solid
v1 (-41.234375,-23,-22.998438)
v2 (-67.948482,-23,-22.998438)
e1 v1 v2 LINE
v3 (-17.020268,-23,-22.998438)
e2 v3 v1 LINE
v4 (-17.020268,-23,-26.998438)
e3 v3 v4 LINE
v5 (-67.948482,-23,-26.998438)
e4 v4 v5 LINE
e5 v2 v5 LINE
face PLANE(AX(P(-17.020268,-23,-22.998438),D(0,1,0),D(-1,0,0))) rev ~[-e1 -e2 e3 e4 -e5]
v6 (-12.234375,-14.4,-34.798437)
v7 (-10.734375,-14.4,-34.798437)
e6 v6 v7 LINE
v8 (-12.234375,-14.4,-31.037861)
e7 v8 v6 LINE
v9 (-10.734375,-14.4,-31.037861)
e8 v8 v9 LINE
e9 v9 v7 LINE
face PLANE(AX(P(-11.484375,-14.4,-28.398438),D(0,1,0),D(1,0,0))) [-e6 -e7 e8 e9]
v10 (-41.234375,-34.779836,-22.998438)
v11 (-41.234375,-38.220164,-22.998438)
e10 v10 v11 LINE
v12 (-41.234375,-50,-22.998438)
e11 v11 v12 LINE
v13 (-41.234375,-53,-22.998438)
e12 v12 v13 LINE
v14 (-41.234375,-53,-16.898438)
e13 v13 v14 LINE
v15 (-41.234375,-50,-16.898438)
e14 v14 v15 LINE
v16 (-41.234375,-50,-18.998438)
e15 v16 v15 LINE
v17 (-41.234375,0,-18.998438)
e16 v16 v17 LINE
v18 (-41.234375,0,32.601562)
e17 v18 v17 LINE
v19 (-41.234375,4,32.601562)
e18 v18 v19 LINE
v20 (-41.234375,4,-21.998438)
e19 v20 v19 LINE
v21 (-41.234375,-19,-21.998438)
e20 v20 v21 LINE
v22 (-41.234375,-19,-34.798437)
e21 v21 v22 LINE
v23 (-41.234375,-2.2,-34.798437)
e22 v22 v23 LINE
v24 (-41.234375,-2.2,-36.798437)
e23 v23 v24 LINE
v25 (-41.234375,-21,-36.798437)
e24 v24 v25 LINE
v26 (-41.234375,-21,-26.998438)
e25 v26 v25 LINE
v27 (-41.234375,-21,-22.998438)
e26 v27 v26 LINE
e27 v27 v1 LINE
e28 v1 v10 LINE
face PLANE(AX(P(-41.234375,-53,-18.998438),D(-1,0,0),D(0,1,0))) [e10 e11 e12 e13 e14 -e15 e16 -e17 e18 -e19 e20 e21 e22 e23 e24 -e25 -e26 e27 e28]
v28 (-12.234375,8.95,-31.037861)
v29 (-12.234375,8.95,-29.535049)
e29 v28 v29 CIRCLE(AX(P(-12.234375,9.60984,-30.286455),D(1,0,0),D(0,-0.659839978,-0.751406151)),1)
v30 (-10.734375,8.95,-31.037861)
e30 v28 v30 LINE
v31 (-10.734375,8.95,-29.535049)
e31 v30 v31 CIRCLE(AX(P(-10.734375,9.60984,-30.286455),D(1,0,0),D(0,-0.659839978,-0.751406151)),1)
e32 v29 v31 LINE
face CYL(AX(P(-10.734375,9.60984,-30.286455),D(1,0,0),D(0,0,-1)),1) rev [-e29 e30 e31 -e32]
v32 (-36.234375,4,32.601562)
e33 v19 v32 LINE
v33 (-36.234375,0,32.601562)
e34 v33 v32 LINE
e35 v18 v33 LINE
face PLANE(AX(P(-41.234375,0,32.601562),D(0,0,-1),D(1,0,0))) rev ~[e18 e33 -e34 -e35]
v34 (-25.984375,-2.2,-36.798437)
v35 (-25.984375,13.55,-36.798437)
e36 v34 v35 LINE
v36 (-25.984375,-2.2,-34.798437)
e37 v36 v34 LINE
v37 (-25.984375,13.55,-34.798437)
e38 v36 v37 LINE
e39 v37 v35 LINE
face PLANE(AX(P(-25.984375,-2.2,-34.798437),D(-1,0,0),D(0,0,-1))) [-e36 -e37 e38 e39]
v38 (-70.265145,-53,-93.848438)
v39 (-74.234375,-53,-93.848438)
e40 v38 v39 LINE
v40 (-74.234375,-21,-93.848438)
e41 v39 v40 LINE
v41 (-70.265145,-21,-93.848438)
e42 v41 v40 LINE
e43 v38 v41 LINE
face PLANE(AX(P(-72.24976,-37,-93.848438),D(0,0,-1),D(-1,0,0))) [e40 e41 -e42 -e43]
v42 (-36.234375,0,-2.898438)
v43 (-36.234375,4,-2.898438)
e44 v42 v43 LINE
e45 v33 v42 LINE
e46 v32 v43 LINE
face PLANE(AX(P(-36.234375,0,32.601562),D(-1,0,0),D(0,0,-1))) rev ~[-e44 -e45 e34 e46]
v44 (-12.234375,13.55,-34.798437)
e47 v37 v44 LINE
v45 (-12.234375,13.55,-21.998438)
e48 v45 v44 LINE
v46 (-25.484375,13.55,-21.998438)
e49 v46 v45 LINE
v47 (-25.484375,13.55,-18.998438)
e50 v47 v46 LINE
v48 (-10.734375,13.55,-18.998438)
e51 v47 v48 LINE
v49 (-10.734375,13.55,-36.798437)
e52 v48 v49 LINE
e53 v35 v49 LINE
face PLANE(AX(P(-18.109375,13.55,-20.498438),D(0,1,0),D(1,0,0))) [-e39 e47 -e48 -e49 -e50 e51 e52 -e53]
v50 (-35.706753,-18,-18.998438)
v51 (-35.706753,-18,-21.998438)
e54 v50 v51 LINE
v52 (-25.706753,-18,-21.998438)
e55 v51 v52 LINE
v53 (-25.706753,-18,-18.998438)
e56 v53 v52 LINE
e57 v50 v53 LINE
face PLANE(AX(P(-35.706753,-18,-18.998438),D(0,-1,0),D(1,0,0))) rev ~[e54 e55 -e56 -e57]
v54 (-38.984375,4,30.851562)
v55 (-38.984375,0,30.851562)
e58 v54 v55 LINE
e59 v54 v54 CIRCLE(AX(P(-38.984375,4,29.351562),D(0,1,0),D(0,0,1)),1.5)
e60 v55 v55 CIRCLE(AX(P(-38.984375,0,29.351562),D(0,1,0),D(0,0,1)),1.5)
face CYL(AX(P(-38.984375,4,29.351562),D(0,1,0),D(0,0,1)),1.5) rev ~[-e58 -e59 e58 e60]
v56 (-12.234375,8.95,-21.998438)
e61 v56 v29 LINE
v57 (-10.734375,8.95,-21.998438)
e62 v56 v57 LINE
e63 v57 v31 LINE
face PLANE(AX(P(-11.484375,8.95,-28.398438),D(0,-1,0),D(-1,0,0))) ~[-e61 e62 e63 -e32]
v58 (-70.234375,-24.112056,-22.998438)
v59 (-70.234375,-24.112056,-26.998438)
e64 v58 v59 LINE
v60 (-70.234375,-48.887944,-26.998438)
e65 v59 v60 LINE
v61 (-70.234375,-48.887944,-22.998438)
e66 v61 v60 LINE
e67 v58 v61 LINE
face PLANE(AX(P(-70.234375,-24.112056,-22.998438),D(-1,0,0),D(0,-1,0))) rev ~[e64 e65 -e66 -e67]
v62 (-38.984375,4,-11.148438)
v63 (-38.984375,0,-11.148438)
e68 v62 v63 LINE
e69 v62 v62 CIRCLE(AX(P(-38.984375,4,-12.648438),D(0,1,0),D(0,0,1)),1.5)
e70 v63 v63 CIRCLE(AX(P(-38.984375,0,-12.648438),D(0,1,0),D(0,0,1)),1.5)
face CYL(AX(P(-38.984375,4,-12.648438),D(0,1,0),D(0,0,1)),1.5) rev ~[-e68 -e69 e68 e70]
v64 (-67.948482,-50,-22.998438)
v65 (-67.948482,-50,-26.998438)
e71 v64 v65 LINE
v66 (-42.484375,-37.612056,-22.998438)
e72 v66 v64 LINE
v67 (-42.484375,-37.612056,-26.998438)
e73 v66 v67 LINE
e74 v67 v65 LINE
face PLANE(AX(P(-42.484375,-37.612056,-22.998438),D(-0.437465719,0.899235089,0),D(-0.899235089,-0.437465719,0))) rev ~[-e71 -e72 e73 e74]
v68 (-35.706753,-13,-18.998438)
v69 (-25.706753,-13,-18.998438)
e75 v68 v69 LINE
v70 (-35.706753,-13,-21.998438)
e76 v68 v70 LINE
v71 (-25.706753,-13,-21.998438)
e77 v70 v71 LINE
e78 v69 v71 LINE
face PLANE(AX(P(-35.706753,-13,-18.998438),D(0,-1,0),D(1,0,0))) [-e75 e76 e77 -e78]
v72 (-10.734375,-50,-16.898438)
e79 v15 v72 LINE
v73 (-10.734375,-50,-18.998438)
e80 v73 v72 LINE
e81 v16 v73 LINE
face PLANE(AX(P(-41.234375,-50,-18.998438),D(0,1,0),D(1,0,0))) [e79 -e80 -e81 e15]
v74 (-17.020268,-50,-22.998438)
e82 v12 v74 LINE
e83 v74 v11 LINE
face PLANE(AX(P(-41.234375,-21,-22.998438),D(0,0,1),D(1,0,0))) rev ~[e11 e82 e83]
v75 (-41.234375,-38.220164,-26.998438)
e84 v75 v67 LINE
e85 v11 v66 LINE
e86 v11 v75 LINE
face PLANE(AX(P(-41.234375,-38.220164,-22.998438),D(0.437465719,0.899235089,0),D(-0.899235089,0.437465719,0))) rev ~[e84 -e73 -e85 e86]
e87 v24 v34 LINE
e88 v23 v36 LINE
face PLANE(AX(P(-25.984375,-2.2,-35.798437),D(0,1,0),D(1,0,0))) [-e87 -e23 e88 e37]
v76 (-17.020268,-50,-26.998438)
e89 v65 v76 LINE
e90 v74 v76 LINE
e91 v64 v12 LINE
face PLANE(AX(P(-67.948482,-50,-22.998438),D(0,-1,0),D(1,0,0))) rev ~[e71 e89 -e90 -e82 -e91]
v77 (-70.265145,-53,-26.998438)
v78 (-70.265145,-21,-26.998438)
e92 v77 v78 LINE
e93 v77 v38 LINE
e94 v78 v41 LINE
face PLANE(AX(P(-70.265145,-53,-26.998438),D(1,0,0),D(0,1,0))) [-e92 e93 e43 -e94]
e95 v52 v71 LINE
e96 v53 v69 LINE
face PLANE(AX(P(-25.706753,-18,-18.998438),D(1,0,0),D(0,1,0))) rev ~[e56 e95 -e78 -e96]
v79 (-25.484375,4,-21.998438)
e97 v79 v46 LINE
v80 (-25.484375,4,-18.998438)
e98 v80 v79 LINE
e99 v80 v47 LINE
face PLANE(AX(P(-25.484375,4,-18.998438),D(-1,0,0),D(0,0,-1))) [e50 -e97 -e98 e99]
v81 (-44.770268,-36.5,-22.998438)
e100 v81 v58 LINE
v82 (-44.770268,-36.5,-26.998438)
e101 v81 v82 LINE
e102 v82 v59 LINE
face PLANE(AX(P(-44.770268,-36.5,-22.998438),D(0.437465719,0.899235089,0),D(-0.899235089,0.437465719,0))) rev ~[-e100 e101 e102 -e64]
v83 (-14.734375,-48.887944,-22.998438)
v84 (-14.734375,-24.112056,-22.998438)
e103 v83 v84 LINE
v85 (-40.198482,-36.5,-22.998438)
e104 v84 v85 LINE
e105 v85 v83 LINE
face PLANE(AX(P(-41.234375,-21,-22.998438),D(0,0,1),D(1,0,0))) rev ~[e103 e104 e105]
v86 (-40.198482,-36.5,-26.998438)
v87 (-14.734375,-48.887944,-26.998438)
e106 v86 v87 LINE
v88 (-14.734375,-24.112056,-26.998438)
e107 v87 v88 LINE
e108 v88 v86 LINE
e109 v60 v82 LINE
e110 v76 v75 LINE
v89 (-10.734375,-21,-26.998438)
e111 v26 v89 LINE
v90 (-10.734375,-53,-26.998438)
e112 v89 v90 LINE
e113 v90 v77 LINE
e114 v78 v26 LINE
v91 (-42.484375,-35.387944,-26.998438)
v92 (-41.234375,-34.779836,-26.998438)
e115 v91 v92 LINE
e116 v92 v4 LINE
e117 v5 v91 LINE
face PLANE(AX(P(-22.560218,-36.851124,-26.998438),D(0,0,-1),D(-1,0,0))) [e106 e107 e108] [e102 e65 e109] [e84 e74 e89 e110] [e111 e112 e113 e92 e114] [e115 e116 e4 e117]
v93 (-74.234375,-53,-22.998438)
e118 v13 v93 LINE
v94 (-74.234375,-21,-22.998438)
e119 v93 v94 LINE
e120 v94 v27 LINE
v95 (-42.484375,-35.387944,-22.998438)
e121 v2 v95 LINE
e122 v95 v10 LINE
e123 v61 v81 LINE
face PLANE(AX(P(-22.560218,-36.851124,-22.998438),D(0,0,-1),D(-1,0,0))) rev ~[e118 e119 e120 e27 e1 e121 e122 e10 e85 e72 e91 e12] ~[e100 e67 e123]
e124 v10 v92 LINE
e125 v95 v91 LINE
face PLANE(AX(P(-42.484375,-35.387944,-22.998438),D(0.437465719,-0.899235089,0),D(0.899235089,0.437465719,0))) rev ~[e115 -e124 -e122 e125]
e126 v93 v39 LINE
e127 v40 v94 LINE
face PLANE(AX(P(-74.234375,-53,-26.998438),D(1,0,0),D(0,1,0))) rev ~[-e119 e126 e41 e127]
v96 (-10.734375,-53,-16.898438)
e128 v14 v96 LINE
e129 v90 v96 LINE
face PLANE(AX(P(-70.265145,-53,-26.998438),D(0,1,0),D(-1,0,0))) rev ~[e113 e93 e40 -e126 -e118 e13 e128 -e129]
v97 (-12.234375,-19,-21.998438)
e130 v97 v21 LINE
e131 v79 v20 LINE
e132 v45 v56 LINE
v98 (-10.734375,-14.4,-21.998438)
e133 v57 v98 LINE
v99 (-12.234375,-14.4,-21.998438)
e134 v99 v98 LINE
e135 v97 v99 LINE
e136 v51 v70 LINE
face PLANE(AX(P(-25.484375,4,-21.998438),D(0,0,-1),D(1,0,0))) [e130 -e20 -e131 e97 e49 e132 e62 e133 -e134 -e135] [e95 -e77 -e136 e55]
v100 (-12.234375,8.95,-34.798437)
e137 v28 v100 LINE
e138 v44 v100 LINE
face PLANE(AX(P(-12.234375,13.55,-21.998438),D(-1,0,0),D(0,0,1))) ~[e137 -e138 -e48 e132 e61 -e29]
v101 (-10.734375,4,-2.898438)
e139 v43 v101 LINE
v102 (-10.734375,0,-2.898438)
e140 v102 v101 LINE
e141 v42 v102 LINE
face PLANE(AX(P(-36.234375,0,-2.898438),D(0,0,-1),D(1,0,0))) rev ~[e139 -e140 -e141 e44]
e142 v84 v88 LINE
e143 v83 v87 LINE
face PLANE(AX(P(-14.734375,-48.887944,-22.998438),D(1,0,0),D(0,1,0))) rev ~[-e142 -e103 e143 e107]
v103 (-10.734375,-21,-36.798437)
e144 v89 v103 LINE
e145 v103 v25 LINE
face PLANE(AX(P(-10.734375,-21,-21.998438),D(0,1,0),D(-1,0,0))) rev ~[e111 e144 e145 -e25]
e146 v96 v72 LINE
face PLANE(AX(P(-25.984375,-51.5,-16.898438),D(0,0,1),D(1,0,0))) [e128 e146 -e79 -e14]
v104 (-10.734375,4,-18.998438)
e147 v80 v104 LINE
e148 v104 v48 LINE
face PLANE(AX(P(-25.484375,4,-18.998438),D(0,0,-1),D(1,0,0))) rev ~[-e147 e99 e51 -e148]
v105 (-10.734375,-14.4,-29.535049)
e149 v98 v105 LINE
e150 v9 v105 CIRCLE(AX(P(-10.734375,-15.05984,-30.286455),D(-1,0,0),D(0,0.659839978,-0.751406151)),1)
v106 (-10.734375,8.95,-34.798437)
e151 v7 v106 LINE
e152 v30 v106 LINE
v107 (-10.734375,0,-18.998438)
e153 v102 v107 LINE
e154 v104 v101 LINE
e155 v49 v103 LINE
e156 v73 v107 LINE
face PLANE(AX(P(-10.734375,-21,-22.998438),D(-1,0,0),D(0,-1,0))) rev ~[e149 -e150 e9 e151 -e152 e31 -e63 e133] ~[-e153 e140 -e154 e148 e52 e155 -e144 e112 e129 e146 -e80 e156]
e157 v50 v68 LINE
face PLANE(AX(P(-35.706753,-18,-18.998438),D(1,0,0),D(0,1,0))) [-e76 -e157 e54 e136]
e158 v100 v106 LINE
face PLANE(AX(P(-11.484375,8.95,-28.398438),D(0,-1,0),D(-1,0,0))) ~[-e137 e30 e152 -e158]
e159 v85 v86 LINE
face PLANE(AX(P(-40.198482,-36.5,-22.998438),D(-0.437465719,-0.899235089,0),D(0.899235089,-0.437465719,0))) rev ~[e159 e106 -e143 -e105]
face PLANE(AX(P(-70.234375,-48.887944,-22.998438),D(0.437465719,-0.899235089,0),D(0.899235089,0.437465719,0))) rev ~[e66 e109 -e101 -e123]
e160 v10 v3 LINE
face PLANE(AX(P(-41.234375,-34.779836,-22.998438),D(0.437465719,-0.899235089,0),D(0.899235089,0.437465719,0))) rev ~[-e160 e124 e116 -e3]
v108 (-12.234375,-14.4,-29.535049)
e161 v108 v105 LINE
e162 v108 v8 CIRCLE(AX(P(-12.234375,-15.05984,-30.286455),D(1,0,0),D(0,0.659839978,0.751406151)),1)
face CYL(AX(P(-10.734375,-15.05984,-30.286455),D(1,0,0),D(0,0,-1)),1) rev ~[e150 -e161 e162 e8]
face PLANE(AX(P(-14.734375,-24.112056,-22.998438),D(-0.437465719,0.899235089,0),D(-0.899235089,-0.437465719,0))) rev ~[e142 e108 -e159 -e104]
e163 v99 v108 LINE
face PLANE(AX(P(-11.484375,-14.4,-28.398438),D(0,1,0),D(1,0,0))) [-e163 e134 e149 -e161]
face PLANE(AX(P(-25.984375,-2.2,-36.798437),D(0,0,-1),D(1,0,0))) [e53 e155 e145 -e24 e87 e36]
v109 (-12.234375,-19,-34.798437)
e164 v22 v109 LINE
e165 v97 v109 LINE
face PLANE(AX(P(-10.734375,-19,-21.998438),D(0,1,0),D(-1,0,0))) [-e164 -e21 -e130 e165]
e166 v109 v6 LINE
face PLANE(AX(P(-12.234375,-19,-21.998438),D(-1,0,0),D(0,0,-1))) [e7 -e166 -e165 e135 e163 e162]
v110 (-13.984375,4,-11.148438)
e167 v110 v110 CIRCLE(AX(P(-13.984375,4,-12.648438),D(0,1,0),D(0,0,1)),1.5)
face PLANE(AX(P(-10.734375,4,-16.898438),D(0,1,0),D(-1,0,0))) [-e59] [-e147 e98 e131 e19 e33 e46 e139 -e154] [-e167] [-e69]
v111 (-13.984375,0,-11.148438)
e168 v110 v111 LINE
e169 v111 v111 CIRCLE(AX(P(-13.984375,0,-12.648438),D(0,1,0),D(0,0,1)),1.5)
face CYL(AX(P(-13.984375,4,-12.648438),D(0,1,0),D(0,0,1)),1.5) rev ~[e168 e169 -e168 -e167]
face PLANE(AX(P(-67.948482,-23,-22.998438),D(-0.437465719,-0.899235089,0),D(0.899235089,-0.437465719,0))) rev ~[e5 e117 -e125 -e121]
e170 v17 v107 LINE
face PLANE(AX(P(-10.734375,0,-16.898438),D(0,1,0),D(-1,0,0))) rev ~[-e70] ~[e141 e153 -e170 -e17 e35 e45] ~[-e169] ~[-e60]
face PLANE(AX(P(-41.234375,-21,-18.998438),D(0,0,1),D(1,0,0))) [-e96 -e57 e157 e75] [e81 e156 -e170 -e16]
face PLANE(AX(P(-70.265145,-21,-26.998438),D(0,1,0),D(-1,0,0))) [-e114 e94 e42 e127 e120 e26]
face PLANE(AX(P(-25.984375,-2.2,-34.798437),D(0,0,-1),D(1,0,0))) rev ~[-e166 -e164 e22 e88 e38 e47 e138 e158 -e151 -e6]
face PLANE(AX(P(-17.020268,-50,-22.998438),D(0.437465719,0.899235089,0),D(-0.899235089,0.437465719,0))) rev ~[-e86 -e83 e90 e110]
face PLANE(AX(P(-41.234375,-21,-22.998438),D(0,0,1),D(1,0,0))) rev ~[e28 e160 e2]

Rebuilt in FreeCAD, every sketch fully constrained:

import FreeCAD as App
import Part
import Sketcher
from FreeCAD import Vector

doc = App.newDocument("Part")
body = doc.addObject("PartDesign::Body", "Body")

sketch1 = doc.addObject("Sketcher::SketchObject", "Sketch")
body.addObject(sketch1)
sketch1.AttachmentSupport = (doc.XZ_Plane, [""])
sketch1.MapMode = "FlatFace"
sketch1.addGeometry([
    Part.LineSegment(Vector(-41, -17, 0), Vector(-41, 33, 0)),
    Part.LineSegment(Vector(-41, 33, 0), Vector(-36, 33, 0)),
    Part.LineSegment(Vector(-36, 33, 0), Vector(-36, -3, 0)),
    Part.LineSegment(Vector(-36, -3, 0), Vector(-11, -3, 0)),
    Part.LineSegment(Vector(-11, -3, 0), Vector(-11, -17, 0)),
    Part.LineSegment(Vector(-11, -17, 0), Vector(-41, -17, 0)),
], False)
sketch1.addConstraint([
    Sketcher.Constraint("Coincident", 0, 2, 1, 1),
    Sketcher.Constraint("Coincident", 1, 2, 2, 1),
    Sketcher.Constraint("Coincident", 2, 2, 3, 1),
    Sketcher.Constraint("Coincident", 3, 2, 4, 1),
    Sketcher.Constraint("Coincident", 4, 2, 5, 1),
    Sketcher.Constraint("Coincident", 5, 2, 0, 1),
    Sketcher.Constraint("Vertical", 0),
    Sketcher.Constraint("Horizontal", 1),
    Sketcher.Constraint("Vertical", 2),
    Sketcher.Constraint("Horizontal", 3),
    Sketcher.Constraint("Vertical", 4),
    Sketcher.Constraint("Horizontal", 5),
    Sketcher.Constraint("DistanceX", 1, 1, 1, 2, 5.0),
    Sketcher.Constraint("DistanceY", 4, 2, 4, 1, 14.0),
    Sketcher.Constraint("DistanceX", 3, 1, 3, 2, 25.5),
    Sketcher.Constraint("DistanceY", 0, 1, 0, 2, 49.5),
    Sketcher.Constraint("DistanceX", 0, 2, -1, 1, 41.234375),
    Sketcher.Constraint("DistanceY", -1, 1, 0, 2, 32.601562),
])
pad1 = doc.addObject("PartDesign::Pad", "Pad")
body.addObject(pad1)
pad1.Profile = sketch1
pad1.Length = 4
pad1.Reversed = True

sketch2 = doc.addObject("Sketcher::SketchObject", "Sketch001")
body.addObject(sketch2)
sketch2.AttachmentSupport = (doc.XZ_Plane, [""])
sketch2.MapMode = "FlatFace"
sketch2.AttachmentOffset = App.Placement(Vector(0, 0, -4), App.Rotation())
sketch2.addGeometry([
    Part.Circle(Vector(-39, 29.4, 0), Vector(0, 0, 1), 1.5),
    Part.Circle(Vector(-39, -12.6, 0), Vector(0, 0, 1), 1.5),
    Part.Circle(Vector(-14, -12.6, 0), Vector(0, 0, 1), 1.5),
], False)
sketch2.addConstraint([
    Sketcher.Constraint("Equal", 0, 1),
    Sketcher.Constraint("Equal", 1, 2),
    Sketcher.Constraint("Horizontal", 1, 3, 2, 3),
    Sketcher.Constraint("Vertical", 0, 3, 1, 3),
    Sketcher.Constraint("Diameter", 0, 3.0),
    Sketcher.Constraint("DistanceY", 1, 3, 0, 3, 42.0),
    Sketcher.Constraint("DistanceX", 1, 3, 2, 3, 25.0),
    Sketcher.Constraint("DistanceX", 0, 3, -1, 1, 38.984375),
    Sketcher.Constraint("DistanceY", -1, 1, 0, 3, 29.351562),
])
pocket1 = doc.addObject("PartDesign::Pocket", "Pocket")
body.addObject(pocket1)
pocket1.Profile = sketch2
pocket1.Type = "ThroughAll"
pocket1.Reversed = True

sketch3 = doc.addObject("Sketcher::SketchObject", "Sketch002")
body.addObject(sketch3)
sketch3.AttachmentSupport = (doc.XY_Plane, [""])
sketch3.MapMode = "FlatFace"
sketch3.AttachmentOffset = App.Placement(Vector(0, 0, -16.898438), App.Rotation())
sketch3.addGeometry([
    Part.LineSegment(Vector(-10.7, 4, 0), Vector(-10.7, 0, 0)),
    Part.LineSegment(Vector(-10.7, 0, 0), Vector(-41.2, 0, 0)),
    Part.LineSegment(Vector(-41.2, 0, 0), Vector(-41.2, 4, 0)),
    Part.LineSegment(Vector(-41.2, 4, 0), Vector(-10.7, 4, 0)),
], False)
sketch3.addConstraint([
    Sketcher.Constraint("Coincident", 0, 2, 1, 1),
    Sketcher.Constraint("Coincident", 1, 2, 2, 1),
    Sketcher.Constraint("Coincident", 2, 2, 3, 1),
    Sketcher.Constraint("Coincident", 3, 2, 0, 1),
    Sketcher.Constraint("Vertical", 0),
    Sketcher.Constraint("Horizontal", 1),
    Sketcher.Constraint("Vertical", 2),
    Sketcher.Constraint("Horizontal", 3),
    Sketcher.Constraint("PointOnObject", 0, 2, -1),
    Sketcher.Constraint("DistanceY", 0, 2, 0, 1, 4.0),
    Sketcher.Constraint("DistanceX", 1, 2, 1, 1, 30.5),
    Sketcher.Constraint("DistanceX", 0, 2, -1, 1, 10.734375),
])
pad2 = doc.addObject("PartDesign::Pad", "Pad001")
body.addObject(pad2)
pad2.Profile = sketch3
pad2.Length = 5.1
pad2.Reversed = True

sketch4 = doc.addObject("Sketcher::SketchObject", "Sketch003")
body.addObject(sketch4)
sketch4.AttachmentSupport = (doc.XZ_Plane, [""])
sketch4.MapMode = "FlatFace"
sketch4.addGeometry([
    Part.LineSegment(Vector(-41.2, -19, 0), Vector(-41.2, -22, 0)),
    Part.LineSegment(Vector(-41.2, -22, 0), Vector(-10.7, -22, 0)),
    Part.LineSegment(Vector(-10.7, -22, 0), Vector(-10.7, -19, 0)),
    Part.LineSegment(Vector(-10.7, -19, 0), Vector(-41.2, -19, 0)),
], False)
sketch4.addConstraint([
    Sketcher.Constraint("Coincident", 0, 2, 1, 1),
    Sketcher.Constraint("Coincident", 1, 2, 2, 1),
    Sketcher.Constraint("Coincident", 2, 2, 3, 1),
    Sketcher.Constraint("Coincident", 3, 2, 0, 1),
    Sketcher.Constraint("Vertical", 0),
    Sketcher.Constraint("Horizontal", 1),
    Sketcher.Constraint("Vertical", 2),
    Sketcher.Constraint("Horizontal", 3),
    Sketcher.Constraint("DistanceY", 0, 2, 0, 1, 3.0),
    Sketcher.Constraint("DistanceX", 1, 1, 1, 2, 30.5),
    Sketcher.Constraint("DistanceX", 0, 2, -1, 1, 41.234375),
    Sketcher.Constraint("DistanceY", 0, 2, -1, 1, 21.998438),
])
pad3 = doc.addObject("PartDesign::Pad", "Pad002")
body.addObject(pad3)
pad3.Profile = sketch4
pad3.Length = 21

sketch5 = doc.addObject("Sketcher::SketchObject", "Sketch004")
body.addObject(sketch5)
sketch5.AttachmentSupport = (doc.XY_Plane, [""])
sketch5.MapMode = "FlatFace"
sketch5.AttachmentOffset = App.Placement(Vector(0, 0, -21.998438), App.Rotation())
sketch5.addGeometry([
    Part.LineSegment(Vector(-10.7, -19, 0), Vector(-10.7, -21, 0)),
    Part.LineSegment(Vector(-10.7, -21, 0), Vector(-41.2, -21, 0)),
    Part.LineSegment(Vector(-41.2, -21, 0), Vector(-41.2, -19, 0)),
    Part.LineSegment(Vector(-41.2, -19, 0), Vector(-10.7, -19, 0)),
], False)
sketch5.addConstraint([
    Sketcher.Constraint("Coincident", 0, 2, 1, 1),
    Sketcher.Constraint("Coincident", 1, 2, 2, 1),
    Sketcher.Constraint("Coincident", 2, 2, 3, 1),
    Sketcher.Constraint("Coincident", 3, 2, 0, 1),
    Sketcher.Constraint("Vertical", 0),
    Sketcher.Constraint("Horizontal", 1),
    Sketcher.Constraint("Vertical", 2),
    Sketcher.Constraint("Horizontal", 3),
    Sketcher.Constraint("DistanceY", 0, 2, 0, 1, 2.0),
    Sketcher.Constraint("DistanceX", 1, 2, 1, 1, 30.5),
    Sketcher.Constraint("DistanceY", 0, 2, -1, 1, 21.0),
    Sketcher.Constraint("DistanceX", 0, 2, -1, 1, 10.734375),
])
pad4 = doc.addObject("PartDesign::Pad", "Pad003")
body.addObject(pad4)
pad4.Profile = sketch5
pad4.Length = 14.8
pad4.Reversed = True

sketch6 = doc.addObject("Sketcher::SketchObject", "Sketch005")
body.addObject(sketch6)
sketch6.AttachmentSupport = (doc.XZ_Plane, [""])
sketch6.MapMode = "FlatFace"
sketch6.AttachmentOffset = App.Placement(Vector(0, 0, 19), App.Rotation())
sketch6.addGeometry([
    Part.LineSegment(Vector(-41.2, -36.8, 0), Vector(-41.2, -34.8, 0)),
    Part.LineSegment(Vector(-41.2, -34.8, 0), Vector(-10.7, -34.8, 0)),
    Part.LineSegment(Vector(-10.7, -34.8, 0), Vector(-10.7, -36.8, 0)),
    Part.LineSegment(Vector(-10.7, -36.8, 0), Vector(-41.2, -36.8, 0)),
], False)
sketch6.addConstraint([
    Sketcher.Constraint("Coincident", 0, 2, 1, 1),
    Sketcher.Constraint("Coincident", 1, 2, 2, 1),
    Sketcher.Constraint("Coincident", 2, 2, 3, 1),
    Sketcher.Constraint("Coincident", 3, 2, 0, 1),
    Sketcher.Constraint("Vertical", 0),
    Sketcher.Constraint("Horizontal", 1),
    Sketcher.Constraint("Vertical", 2),
    Sketcher.Constraint("Horizontal", 3),
    Sketcher.Constraint("DistanceY", 0, 1, 0, 2, 2.0),
    Sketcher.Constraint("DistanceX", 1, 1, 1, 2, 30.5),
    Sketcher.Constraint("DistanceX", 0, 2, -1, 1, 41.234375),
    Sketcher.Constraint("DistanceY", 0, 2, -1, 1, 34.798437),
])
pad5 = doc.addObject("PartDesign::Pad", "Pad004")
body.addObject(pad5)
pad5.Profile = sketch6
pad5.Length = 16.8
pad5.Reversed = True

sketch7 = doc.addObject("Sketcher::SketchObject", "Sketch006")
body.addObject(sketch7)
sketch7.AttachmentSupport = (doc.XZ_Plane, [""])
sketch7.MapMode = "FlatFace"
sketch7.AttachmentOffset = App.Placement(Vector(0, 0, 19), App.Rotation())
sketch7.addGeometry([
    Part.LineSegment(Vector(-12.2, -34.8, 0), Vector(-12.2, -22, 0)),
    Part.LineSegment(Vector(-12.2, -22, 0), Vector(-10.7, -22, 0)),
    Part.LineSegment(Vector(-10.7, -22, 0), Vector(-10.7, -34.8, 0)),
    Part.LineSegment(Vector(-10.7, -34.8, 0), Vector(-12.2, -34.8, 0)),
], False)
sketch7.addConstraint([
    Sketcher.Constraint("Coincident", 0, 2, 1, 1),
    Sketcher.Constraint("Coincident", 1, 2, 2, 1),
    Sketcher.Constraint("Coincident", 2, 2, 3, 1),
    Sketcher.Constraint("Coincident", 3, 2, 0, 1),
    Sketcher.Constraint("Vertical", 0),
    Sketcher.Constraint("Horizontal", 1),
    Sketcher.Constraint("Vertical", 2),
    Sketcher.Constraint("Horizontal", 3),
    Sketcher.Constraint("DistanceX", 1, 1, 1, 2, 1.5),
    Sketcher.Constraint("DistanceY", 0, 1, 0, 2, 12.8),
    Sketcher.Constraint("DistanceX", 0, 2, -1, 1, 12.234375),
    Sketcher.Constraint("DistanceY", 0, 2, -1, 1, 21.998438),
])
pad6 = doc.addObject("PartDesign::Pad", "Pad005")
body.addObject(pad6)
pad6.Profile = sketch7
pad6.Length = 4.6
pad6.Reversed = True

sketch8 = doc.addObject("Sketcher::SketchObject", "Sketch007")
body.addObject(sketch8)
sketch8.AttachmentSupport = (doc.XZ_Plane, [""])
sketch8.MapMode = "FlatFace"
sketch8.AttachmentOffset = App.Placement(Vector(0, 0, 2.2), App.Rotation())
sketch8.addGeometry([
    Part.LineSegment(Vector(-26, -36.8, 0), Vector(-26, -34.8, 0)),
    Part.LineSegment(Vector(-26, -34.8, 0), Vector(-10.7, -34.8, 0)),
    Part.LineSegment(Vector(-10.7, -34.8, 0), Vector(-10.7, -36.8, 0)),
    Part.LineSegment(Vector(-10.7, -36.8, 0), Vector(-26, -36.8, 0)),
], False)
sketch8.addConstraint([
    Sketcher.Constraint("Coincident", 0, 2, 1, 1),
    Sketcher.Constraint("Coincident", 1, 2, 2, 1),
    Sketcher.Constraint("Coincident", 2, 2, 3, 1),
    Sketcher.Constraint("Coincident", 3, 2, 0, 1),
    Sketcher.Constraint("Vertical", 0),
    Sketcher.Constraint("Horizontal", 1),
    Sketcher.Constraint("Vertical", 2),
    Sketcher.Constraint("Horizontal", 3),
    Sketcher.Constraint("DistanceY", 0, 1, 0, 2, 2.0),
    Sketcher.Constraint("DistanceX", 1, 1, 1, 2, 15.25),
    Sketcher.Constraint("DistanceX", 0, 2, -1, 1, 25.984375),
    Sketcher.Constraint("DistanceY", 0, 2, -1, 1, 34.798437),
])
pad7 = doc.addObject("PartDesign::Pad", "Pad006")
body.addObject(pad7)
pad7.Profile = sketch8
pad7.Length = 15.75
pad7.Reversed = True

sketch9 = doc.addObject("Sketcher::SketchObject", "Sketch008")
body.addObject(sketch9)
sketch9.AttachmentSupport = (doc.XY_Plane, [""])
sketch9.MapMode = "FlatFace"
sketch9.AttachmentOffset = App.Placement(Vector(0, 0, -18.998438), App.Rotation())
sketch9.addGeometry([
    Part.LineSegment(Vector(-36, -13, 0), Vector(-36, -18, 0)),
    Part.LineSegment(Vector(-36, -18, 0), Vector(-26, -18, 0)),
    Part.LineSegment(Vector(-26, -18, 0), Vector(-26, -13, 0)),
    Part.LineSegment(Vector(-26, -13, 0), Vector(-36, -13, 0)),
], False)
sketch9.addConstraint([
    Sketcher.Constraint("Coincident", 0, 2, 1, 1),
    Sketcher.Constraint("Coincident", 1, 2, 2, 1),
    Sketcher.Constraint("Coincident", 2, 2, 3, 1),
    Sketcher.Constraint("Coincident", 3, 2, 0, 1),
    Sketcher.Constraint("Vertical", 0),
    Sketcher.Constraint("Horizontal", 1),
    Sketcher.Constraint("Vertical", 2),
    Sketcher.Constraint("Horizontal", 3),
    Sketcher.Constraint("DistanceX", 1, 1, 1, 2, 10.0),
    Sketcher.Constraint("DistanceY", 0, 2, 0, 1, 5.0),
    Sketcher.Constraint("DistanceY", 0, 2, -1, 1, 18.0),
    Sketcher.Constraint("DistanceX", 0, 2, -1, 1, 35.706753),
])
pocket2 = doc.addObject("PartDesign::Pocket", "Pocket001")
body.addObject(pocket2)
pocket2.Profile = sketch9
pocket2.Length = 3

sketch10 = doc.addObject("Sketcher::SketchObject", "Sketch009")
body.addObject(sketch10)
sketch10.AttachmentSupport = (doc.YZ_Plane, [""])
sketch10.MapMode = "FlatFace"
sketch10.AttachmentOffset = App.Placement(Vector(0, 0, -10.734375), App.Rotation())
sketch10.addGeometry(Part.Circle(Vector(-15.1, -30.3, 0), Vector(0, 0, 1), 1), False)
sketch10.addConstraint([
    Sketcher.Constraint("Diameter", 0, 2.0),
    Sketcher.Constraint("DistanceX", 0, 3, -1, 1, 15.05984),
    Sketcher.Constraint("DistanceY", 0, 3, -1, 1, 30.286455),
])
pocket3 = doc.addObject("PartDesign::Pocket", "Pocket002")
body.addObject(pocket3)
pocket3.Profile = sketch10
pocket3.Length = 10
doc.recompute()

datumplane = doc.addObject("PartDesign::Plane", "DatumPlane")
body.addObject(datumplane)
datumplane.AttachmentSupport = (doc.XZ_Plane, [""])
datumplane.MapMode = "FlatFace"
datumplane.AttachmentOffset = App.Placement(Vector(0, 0, 2.725), App.Rotation())
mirrored = doc.addObject("PartDesign::Mirrored", "Mirrored")
body.addObject(mirrored)
mirrored.Originals = [pad6, pocket3]
mirrored.MirrorPlane = (datumplane, [""])
body.Tip = mirrored

sketch11 = doc.addObject("Sketcher::SketchObject", "Sketch010")
body.addObject(sketch11)
sketch11.AttachmentSupport = (doc.XZ_Plane, [""])
sketch11.MapMode = "FlatFace"
sketch11.AttachmentOffset = App.Placement(Vector(0, 0, -4), App.Rotation())
sketch11.addGeometry([
    Part.LineSegment(Vector(-25.5, -22, 0), Vector(-25.5, -19, 0)),
    Part.LineSegment(Vector(-25.5, -19, 0), Vector(-10.7, -19, 0)),
    Part.LineSegment(Vector(-10.7, -19, 0), Vector(-10.7, -22, 0)),
    Part.LineSegment(Vector(-10.7, -22, 0), Vector(-25.5, -22, 0)),
], False)
sketch11.addConstraint([
    Sketcher.Constraint("Coincident", 0, 2, 1, 1),
    Sketcher.Constraint("Coincident", 1, 2, 2, 1),
    Sketcher.Constraint("Coincident", 2, 2, 3, 1),
    Sketcher.Constraint("Coincident", 3, 2, 0, 1),
    Sketcher.Constraint("Vertical", 0),
    Sketcher.Constraint("Horizontal", 1),
    Sketcher.Constraint("Vertical", 2),
    Sketcher.Constraint("Horizontal", 3),
    Sketcher.Constraint("DistanceY", 0, 1, 0, 2, 3.0),
    Sketcher.Constraint("DistanceX", 1, 1, 1, 2, 14.75),
    Sketcher.Constraint("DistanceX", 0, 2, -1, 1, 25.484375),
    Sketcher.Constraint("DistanceY", 0, 2, -1, 1, 18.998438),
])
pad8 = doc.addObject("PartDesign::Pad", "Pad007")
body.addObject(pad8)
pad8.Profile = sketch11
pad8.Length = 9.55
pad8.Reversed = True

sketch12 = doc.addObject("Sketcher::SketchObject", "Sketch011")
body.addObject(sketch12)
sketch12.AttachmentSupport = (doc.XZ_Plane, [""])
sketch12.MapMode = "FlatFace"
sketch12.AttachmentOffset = App.Placement(Vector(0, 0, 21), App.Rotation())
sketch12.addGeometry([
    Part.LineSegment(Vector(-41.2, -19, 0), Vector(-41.2, -23, 0)),
    Part.LineSegment(Vector(-41.2, -23, 0), Vector(-10.7, -23, 0)),
    Part.LineSegment(Vector(-10.7, -23, 0), Vector(-10.7, -19, 0)),
    Part.LineSegment(Vector(-10.7, -19, 0), Vector(-41.2, -19, 0)),
], False)
sketch12.addConstraint([
    Sketcher.Constraint("Coincident", 0, 2, 1, 1),
    Sketcher.Constraint("Coincident", 1, 2, 2, 1),
    Sketcher.Constraint("Coincident", 2, 2, 3, 1),
    Sketcher.Constraint("Coincident", 3, 2, 0, 1),
    Sketcher.Constraint("Vertical", 0),
    Sketcher.Constraint("Horizontal", 1),
    Sketcher.Constraint("Vertical", 2),
    Sketcher.Constraint("Horizontal", 3),
    Sketcher.Constraint("DistanceY", 0, 2, 0, 1, 4.0),
    Sketcher.Constraint("DistanceX", 1, 1, 1, 2, 30.5),
    Sketcher.Constraint("DistanceX", 0, 2, -1, 1, 41.234375),
    Sketcher.Constraint("DistanceY", 0, 2, -1, 1, 22.998438),
])
pad9 = doc.addObject("PartDesign::Pad", "Pad008")
body.addObject(pad9)
pad9.Profile = sketch12
pad9.Length = 32

sketch13 = doc.addObject("Sketcher::SketchObject", "Sketch012")
body.addObject(sketch13)
sketch13.AttachmentSupport = (doc.XY_Plane, [""])
sketch13.MapMode = "FlatFace"
sketch13.AttachmentOffset = App.Placement(Vector(0, 0, -18.998438), App.Rotation())
sketch13.addGeometry([
    Part.LineSegment(Vector(-41.2, -50, 0), Vector(-41.2, -53, 0)),
    Part.LineSegment(Vector(-41.2, -53, 0), Vector(-10.7, -53, 0)),
    Part.LineSegment(Vector(-10.7, -53, 0), Vector(-10.7, -50, 0)),
    Part.LineSegment(Vector(-10.7, -50, 0), Vector(-41.2, -50, 0)),
], False)
sketch13.addConstraint([
    Sketcher.Constraint("Coincident", 0, 2, 1, 1),
    Sketcher.Constraint("Coincident", 1, 2, 2, 1),
    Sketcher.Constraint("Coincident", 2, 2, 3, 1),
    Sketcher.Constraint("Coincident", 3, 2, 0, 1),
    Sketcher.Constraint("Vertical", 0),
    Sketcher.Constraint("Horizontal", 1),
    Sketcher.Constraint("Vertical", 2),
    Sketcher.Constraint("Horizontal", 3),
    Sketcher.Constraint("DistanceY", 0, 2, 0, 1, 3.0),
    Sketcher.Constraint("DistanceX", 1, 1, 1, 2, 30.5),
    Sketcher.Constraint("DistanceY", 0, 2, -1, 1, 53.0),
    Sketcher.Constraint("DistanceX", 0, 2, -1, 1, 41.234375),
])
pad10 = doc.addObject("PartDesign::Pad", "Pad009")
body.addObject(pad10)
pad10.Profile = sketch13
pad10.Length = 2.1

sketch14 = doc.addObject("Sketcher::SketchObject", "Sketch013")
body.addObject(sketch14)
sketch14.AttachmentSupport = (doc.XY_Plane, [""])
sketch14.MapMode = "FlatFace"
sketch14.AttachmentOffset = App.Placement(Vector(0, 0, -22.998438), App.Rotation())
sketch14.addGeometry([
    Part.LineSegment(Vector(-10.7, -21, 0), Vector(-10.7, -53, 0)),
    Part.LineSegment(Vector(-10.7, -53, 0), Vector(-74.2, -53, 0)),
    Part.LineSegment(Vector(-74.2, -53, 0), Vector(-74.2, -21, 0)),
    Part.LineSegment(Vector(-74.2, -21, 0), Vector(-10.7, -21, 0)),
    Part.LineSegment(Vector(-17, -23, 0), Vector(-67.9, -23, 0)),
    Part.LineSegment(Vector(-67.9, -23, 0), Vector(-42.5, -35.4, 0)),
    Part.LineSegment(Vector(-42.5, -35.4, 0), Vector(-41.2, -34.8, 0)),
    Part.LineSegment(Vector(-41.2, -34.8, 0), Vector(-17, -23, 0)),
    Part.LineSegment(Vector(-70.2, -24.1, 0), Vector(-70.2, -48.9, 0)),
    Part.LineSegment(Vector(-70.2, -48.9, 0), Vector(-44.8, -36.5, 0)),
    Part.LineSegment(Vector(-44.8, -36.5, 0), Vector(-70.2, -24.1, 0)),
    Part.LineSegment(Vector(-67.9, -50, 0), Vector(-17, -50, 0)),
    Part.LineSegment(Vector(-17, -50, 0), Vector(-41.2, -38.2, 0)),
    Part.LineSegment(Vector(-41.2, -38.2, 0), Vector(-42.5, -37.6, 0)),
    Part.LineSegment(Vector(-42.5, -37.6, 0), Vector(-67.9, -50, 0)),
    Part.LineSegment(Vector(-14.7, -48.9, 0), Vector(-14.7, -24.1, 0)),
    Part.LineSegment(Vector(-14.7, -24.1, 0), Vector(-40.2, -36.5, 0)),
    Part.LineSegment(Vector(-40.2, -36.5, 0), Vector(-14.7, -48.9, 0)),
], False)
sketch14.addConstraint([
    Sketcher.Constraint("Coincident", 0, 2, 1, 1),
    Sketcher.Constraint("Coincident", 1, 2, 2, 1),
    Sketcher.Constraint("Coincident", 2, 2, 3, 1),
    Sketcher.Constraint("Coincident", 3, 2, 0, 1),
    Sketcher.Constraint("Coincident", 4, 2, 5, 1),
    Sketcher.Constraint("Coincident", 5, 2, 6, 1),
    Sketcher.Constraint("Coincident", 6, 2, 7, 1),
    Sketcher.Constraint("Coincident", 7, 2, 4, 1),
    Sketcher.Constraint("Coincident", 8, 2, 9, 1),
    Sketcher.Constraint("Coincident", 9, 2, 10, 1),
    Sketcher.Constraint("Coincident", 10, 2, 8, 1),
    Sketcher.Constraint("Coincident", 11, 2, 12, 1),
    Sketcher.Constraint("Coincident", 12, 2, 13, 1),
    Sketcher.Constraint("Coincident", 13, 2, 14, 1),
    Sketcher.Constraint("Coincident", 14, 2, 11, 1),
    Sketcher.Constraint("Coincident", 15, 2, 16, 1),
    Sketcher.Constraint("Coincident", 16, 2, 17, 1),
    Sketcher.Constraint("Coincident", 17, 2, 15, 1),
    Sketcher.Constraint("Vertical", 0),
    Sketcher.Constraint("Horizontal", 1),
    Sketcher.Constraint("Vertical", 2),
    Sketcher.Constraint("Horizontal", 3),
    Sketcher.Constraint("Horizontal", 4),
    Sketcher.Constraint("Vertical", 8),
    Sketcher.Constraint("Horizontal", 11),
    Sketcher.Constraint("Vertical", 15),
    Sketcher.Constraint("Parallel", 6, 7),
    Sketcher.Constraint("Parallel", 7, 9),
    Sketcher.Constraint("Parallel", 5, 10),
    Sketcher.Constraint("Parallel", 10, 12),
    Sketcher.Constraint("Parallel", 12, 13),
    Sketcher.Constraint("Parallel", 9, 14),
    Sketcher.Constraint("Parallel", 14, 16),
    Sketcher.Constraint("Parallel", 13, 17),
    Sketcher.Constraint("Horizontal", 10, 2, 15, 2),
    Sketcher.Constraint("Horizontal", 9, 2, 16, 2),
    Sketcher.Constraint("Horizontal", 8, 2, 17, 2),
    Sketcher.Constraint("Vertical", 7, 2, 11, 2),
    Sketcher.Constraint("Vertical", 6, 2, 12, 2),
    Sketcher.Constraint("Vertical", 5, 2, 13, 2),
    Sketcher.Constraint("Equal", 5, 9),
    Sketcher.Constraint("DistanceY", 0, 2, 0, 1, 32.0),
    Sketcher.Constraint("DistanceX", 1, 2, 1, 1, 63.5),
    Sketcher.Constraint("DistanceY", 0, 2, -1, 1, 53.0),
    Sketcher.Constraint("DistanceY", 4, 2, -1, 1, 23.0),
    Sketcher.Constraint("DistanceY", 11, 2, -1, 1, 50.0),
    Sketcher.Constraint("DistanceX", 2, 2, 6, 2, 33.0),
    Sketcher.Constraint("DistanceX", 1, 2, 8, 2, 4.0),
    Sketcher.Constraint("DistanceX", 15, 2, 3, 2, 4.0),
    Sketcher.Constraint("DistanceY", 9, 2, -1, 1, 36.5),
    Sketcher.Constraint("DistanceX", 2, 2, 5, 2, 31.75),
    Sketcher.Constraint("Distance", 5, 28.317519),
    Sketcher.Constraint("Distance", 6, 1.39007),
    Sketcher.Constraint("DistanceX", 4, 2, -1, 1, 67.948482),
])
pad11 = doc.addObject("PartDesign::Pad", "Pad010")
body.addObject(pad11)
pad11.Profile = sketch14
pad11.Length = 4
pad11.Reversed = True

sketch15 = doc.addObject("Sketcher::SketchObject", "Sketch014")
body.addObject(sketch15)
sketch15.AttachmentSupport = (doc.XY_Plane, [""])
sketch15.MapMode = "FlatFace"
sketch15.AttachmentOffset = App.Placement(Vector(0, 0, -26.998438), App.Rotation())
sketch15.addGeometry([
    Part.LineSegment(Vector(-70.3, -21, 0), Vector(-70.3, -53, 0)),
    Part.LineSegment(Vector(-70.3, -53, 0), Vector(-74.2, -53, 0)),
    Part.LineSegment(Vector(-74.2, -53, 0), Vector(-74.2, -21, 0)),
    Part.LineSegment(Vector(-74.2, -21, 0), Vector(-70.3, -21, 0)),
], False)
sketch15.addConstraint([
    Sketcher.Constraint("Coincident", 0, 2, 1, 1),
    Sketcher.Constraint("Coincident", 1, 2, 2, 1),
    Sketcher.Constraint("Coincident", 2, 2, 3, 1),
    Sketcher.Constraint("Coincident", 3, 2, 0, 1),
    Sketcher.Constraint("Vertical", 0),
    Sketcher.Constraint("Horizontal", 1),
    Sketcher.Constraint("Vertical", 2),
    Sketcher.Constraint("Horizontal", 3),
    Sketcher.Constraint("DistanceY", 0, 2, 0, 1, 32.0),
    Sketcher.Constraint("DistanceY", 0, 2, -1, 1, 53.0),
    Sketcher.Constraint("DistanceX", 1, 2, 1, 1, 3.96923),
    Sketcher.Constraint("DistanceX", 0, 2, -1, 1, 70.265145),
])
pad12 = doc.addObject("PartDesign::Pad", "Pad011")
body.addObject(pad12)
pad12.Profile = sketch15
pad12.Length = 66.85
pad12.Reversed = True

doc.recompute()
